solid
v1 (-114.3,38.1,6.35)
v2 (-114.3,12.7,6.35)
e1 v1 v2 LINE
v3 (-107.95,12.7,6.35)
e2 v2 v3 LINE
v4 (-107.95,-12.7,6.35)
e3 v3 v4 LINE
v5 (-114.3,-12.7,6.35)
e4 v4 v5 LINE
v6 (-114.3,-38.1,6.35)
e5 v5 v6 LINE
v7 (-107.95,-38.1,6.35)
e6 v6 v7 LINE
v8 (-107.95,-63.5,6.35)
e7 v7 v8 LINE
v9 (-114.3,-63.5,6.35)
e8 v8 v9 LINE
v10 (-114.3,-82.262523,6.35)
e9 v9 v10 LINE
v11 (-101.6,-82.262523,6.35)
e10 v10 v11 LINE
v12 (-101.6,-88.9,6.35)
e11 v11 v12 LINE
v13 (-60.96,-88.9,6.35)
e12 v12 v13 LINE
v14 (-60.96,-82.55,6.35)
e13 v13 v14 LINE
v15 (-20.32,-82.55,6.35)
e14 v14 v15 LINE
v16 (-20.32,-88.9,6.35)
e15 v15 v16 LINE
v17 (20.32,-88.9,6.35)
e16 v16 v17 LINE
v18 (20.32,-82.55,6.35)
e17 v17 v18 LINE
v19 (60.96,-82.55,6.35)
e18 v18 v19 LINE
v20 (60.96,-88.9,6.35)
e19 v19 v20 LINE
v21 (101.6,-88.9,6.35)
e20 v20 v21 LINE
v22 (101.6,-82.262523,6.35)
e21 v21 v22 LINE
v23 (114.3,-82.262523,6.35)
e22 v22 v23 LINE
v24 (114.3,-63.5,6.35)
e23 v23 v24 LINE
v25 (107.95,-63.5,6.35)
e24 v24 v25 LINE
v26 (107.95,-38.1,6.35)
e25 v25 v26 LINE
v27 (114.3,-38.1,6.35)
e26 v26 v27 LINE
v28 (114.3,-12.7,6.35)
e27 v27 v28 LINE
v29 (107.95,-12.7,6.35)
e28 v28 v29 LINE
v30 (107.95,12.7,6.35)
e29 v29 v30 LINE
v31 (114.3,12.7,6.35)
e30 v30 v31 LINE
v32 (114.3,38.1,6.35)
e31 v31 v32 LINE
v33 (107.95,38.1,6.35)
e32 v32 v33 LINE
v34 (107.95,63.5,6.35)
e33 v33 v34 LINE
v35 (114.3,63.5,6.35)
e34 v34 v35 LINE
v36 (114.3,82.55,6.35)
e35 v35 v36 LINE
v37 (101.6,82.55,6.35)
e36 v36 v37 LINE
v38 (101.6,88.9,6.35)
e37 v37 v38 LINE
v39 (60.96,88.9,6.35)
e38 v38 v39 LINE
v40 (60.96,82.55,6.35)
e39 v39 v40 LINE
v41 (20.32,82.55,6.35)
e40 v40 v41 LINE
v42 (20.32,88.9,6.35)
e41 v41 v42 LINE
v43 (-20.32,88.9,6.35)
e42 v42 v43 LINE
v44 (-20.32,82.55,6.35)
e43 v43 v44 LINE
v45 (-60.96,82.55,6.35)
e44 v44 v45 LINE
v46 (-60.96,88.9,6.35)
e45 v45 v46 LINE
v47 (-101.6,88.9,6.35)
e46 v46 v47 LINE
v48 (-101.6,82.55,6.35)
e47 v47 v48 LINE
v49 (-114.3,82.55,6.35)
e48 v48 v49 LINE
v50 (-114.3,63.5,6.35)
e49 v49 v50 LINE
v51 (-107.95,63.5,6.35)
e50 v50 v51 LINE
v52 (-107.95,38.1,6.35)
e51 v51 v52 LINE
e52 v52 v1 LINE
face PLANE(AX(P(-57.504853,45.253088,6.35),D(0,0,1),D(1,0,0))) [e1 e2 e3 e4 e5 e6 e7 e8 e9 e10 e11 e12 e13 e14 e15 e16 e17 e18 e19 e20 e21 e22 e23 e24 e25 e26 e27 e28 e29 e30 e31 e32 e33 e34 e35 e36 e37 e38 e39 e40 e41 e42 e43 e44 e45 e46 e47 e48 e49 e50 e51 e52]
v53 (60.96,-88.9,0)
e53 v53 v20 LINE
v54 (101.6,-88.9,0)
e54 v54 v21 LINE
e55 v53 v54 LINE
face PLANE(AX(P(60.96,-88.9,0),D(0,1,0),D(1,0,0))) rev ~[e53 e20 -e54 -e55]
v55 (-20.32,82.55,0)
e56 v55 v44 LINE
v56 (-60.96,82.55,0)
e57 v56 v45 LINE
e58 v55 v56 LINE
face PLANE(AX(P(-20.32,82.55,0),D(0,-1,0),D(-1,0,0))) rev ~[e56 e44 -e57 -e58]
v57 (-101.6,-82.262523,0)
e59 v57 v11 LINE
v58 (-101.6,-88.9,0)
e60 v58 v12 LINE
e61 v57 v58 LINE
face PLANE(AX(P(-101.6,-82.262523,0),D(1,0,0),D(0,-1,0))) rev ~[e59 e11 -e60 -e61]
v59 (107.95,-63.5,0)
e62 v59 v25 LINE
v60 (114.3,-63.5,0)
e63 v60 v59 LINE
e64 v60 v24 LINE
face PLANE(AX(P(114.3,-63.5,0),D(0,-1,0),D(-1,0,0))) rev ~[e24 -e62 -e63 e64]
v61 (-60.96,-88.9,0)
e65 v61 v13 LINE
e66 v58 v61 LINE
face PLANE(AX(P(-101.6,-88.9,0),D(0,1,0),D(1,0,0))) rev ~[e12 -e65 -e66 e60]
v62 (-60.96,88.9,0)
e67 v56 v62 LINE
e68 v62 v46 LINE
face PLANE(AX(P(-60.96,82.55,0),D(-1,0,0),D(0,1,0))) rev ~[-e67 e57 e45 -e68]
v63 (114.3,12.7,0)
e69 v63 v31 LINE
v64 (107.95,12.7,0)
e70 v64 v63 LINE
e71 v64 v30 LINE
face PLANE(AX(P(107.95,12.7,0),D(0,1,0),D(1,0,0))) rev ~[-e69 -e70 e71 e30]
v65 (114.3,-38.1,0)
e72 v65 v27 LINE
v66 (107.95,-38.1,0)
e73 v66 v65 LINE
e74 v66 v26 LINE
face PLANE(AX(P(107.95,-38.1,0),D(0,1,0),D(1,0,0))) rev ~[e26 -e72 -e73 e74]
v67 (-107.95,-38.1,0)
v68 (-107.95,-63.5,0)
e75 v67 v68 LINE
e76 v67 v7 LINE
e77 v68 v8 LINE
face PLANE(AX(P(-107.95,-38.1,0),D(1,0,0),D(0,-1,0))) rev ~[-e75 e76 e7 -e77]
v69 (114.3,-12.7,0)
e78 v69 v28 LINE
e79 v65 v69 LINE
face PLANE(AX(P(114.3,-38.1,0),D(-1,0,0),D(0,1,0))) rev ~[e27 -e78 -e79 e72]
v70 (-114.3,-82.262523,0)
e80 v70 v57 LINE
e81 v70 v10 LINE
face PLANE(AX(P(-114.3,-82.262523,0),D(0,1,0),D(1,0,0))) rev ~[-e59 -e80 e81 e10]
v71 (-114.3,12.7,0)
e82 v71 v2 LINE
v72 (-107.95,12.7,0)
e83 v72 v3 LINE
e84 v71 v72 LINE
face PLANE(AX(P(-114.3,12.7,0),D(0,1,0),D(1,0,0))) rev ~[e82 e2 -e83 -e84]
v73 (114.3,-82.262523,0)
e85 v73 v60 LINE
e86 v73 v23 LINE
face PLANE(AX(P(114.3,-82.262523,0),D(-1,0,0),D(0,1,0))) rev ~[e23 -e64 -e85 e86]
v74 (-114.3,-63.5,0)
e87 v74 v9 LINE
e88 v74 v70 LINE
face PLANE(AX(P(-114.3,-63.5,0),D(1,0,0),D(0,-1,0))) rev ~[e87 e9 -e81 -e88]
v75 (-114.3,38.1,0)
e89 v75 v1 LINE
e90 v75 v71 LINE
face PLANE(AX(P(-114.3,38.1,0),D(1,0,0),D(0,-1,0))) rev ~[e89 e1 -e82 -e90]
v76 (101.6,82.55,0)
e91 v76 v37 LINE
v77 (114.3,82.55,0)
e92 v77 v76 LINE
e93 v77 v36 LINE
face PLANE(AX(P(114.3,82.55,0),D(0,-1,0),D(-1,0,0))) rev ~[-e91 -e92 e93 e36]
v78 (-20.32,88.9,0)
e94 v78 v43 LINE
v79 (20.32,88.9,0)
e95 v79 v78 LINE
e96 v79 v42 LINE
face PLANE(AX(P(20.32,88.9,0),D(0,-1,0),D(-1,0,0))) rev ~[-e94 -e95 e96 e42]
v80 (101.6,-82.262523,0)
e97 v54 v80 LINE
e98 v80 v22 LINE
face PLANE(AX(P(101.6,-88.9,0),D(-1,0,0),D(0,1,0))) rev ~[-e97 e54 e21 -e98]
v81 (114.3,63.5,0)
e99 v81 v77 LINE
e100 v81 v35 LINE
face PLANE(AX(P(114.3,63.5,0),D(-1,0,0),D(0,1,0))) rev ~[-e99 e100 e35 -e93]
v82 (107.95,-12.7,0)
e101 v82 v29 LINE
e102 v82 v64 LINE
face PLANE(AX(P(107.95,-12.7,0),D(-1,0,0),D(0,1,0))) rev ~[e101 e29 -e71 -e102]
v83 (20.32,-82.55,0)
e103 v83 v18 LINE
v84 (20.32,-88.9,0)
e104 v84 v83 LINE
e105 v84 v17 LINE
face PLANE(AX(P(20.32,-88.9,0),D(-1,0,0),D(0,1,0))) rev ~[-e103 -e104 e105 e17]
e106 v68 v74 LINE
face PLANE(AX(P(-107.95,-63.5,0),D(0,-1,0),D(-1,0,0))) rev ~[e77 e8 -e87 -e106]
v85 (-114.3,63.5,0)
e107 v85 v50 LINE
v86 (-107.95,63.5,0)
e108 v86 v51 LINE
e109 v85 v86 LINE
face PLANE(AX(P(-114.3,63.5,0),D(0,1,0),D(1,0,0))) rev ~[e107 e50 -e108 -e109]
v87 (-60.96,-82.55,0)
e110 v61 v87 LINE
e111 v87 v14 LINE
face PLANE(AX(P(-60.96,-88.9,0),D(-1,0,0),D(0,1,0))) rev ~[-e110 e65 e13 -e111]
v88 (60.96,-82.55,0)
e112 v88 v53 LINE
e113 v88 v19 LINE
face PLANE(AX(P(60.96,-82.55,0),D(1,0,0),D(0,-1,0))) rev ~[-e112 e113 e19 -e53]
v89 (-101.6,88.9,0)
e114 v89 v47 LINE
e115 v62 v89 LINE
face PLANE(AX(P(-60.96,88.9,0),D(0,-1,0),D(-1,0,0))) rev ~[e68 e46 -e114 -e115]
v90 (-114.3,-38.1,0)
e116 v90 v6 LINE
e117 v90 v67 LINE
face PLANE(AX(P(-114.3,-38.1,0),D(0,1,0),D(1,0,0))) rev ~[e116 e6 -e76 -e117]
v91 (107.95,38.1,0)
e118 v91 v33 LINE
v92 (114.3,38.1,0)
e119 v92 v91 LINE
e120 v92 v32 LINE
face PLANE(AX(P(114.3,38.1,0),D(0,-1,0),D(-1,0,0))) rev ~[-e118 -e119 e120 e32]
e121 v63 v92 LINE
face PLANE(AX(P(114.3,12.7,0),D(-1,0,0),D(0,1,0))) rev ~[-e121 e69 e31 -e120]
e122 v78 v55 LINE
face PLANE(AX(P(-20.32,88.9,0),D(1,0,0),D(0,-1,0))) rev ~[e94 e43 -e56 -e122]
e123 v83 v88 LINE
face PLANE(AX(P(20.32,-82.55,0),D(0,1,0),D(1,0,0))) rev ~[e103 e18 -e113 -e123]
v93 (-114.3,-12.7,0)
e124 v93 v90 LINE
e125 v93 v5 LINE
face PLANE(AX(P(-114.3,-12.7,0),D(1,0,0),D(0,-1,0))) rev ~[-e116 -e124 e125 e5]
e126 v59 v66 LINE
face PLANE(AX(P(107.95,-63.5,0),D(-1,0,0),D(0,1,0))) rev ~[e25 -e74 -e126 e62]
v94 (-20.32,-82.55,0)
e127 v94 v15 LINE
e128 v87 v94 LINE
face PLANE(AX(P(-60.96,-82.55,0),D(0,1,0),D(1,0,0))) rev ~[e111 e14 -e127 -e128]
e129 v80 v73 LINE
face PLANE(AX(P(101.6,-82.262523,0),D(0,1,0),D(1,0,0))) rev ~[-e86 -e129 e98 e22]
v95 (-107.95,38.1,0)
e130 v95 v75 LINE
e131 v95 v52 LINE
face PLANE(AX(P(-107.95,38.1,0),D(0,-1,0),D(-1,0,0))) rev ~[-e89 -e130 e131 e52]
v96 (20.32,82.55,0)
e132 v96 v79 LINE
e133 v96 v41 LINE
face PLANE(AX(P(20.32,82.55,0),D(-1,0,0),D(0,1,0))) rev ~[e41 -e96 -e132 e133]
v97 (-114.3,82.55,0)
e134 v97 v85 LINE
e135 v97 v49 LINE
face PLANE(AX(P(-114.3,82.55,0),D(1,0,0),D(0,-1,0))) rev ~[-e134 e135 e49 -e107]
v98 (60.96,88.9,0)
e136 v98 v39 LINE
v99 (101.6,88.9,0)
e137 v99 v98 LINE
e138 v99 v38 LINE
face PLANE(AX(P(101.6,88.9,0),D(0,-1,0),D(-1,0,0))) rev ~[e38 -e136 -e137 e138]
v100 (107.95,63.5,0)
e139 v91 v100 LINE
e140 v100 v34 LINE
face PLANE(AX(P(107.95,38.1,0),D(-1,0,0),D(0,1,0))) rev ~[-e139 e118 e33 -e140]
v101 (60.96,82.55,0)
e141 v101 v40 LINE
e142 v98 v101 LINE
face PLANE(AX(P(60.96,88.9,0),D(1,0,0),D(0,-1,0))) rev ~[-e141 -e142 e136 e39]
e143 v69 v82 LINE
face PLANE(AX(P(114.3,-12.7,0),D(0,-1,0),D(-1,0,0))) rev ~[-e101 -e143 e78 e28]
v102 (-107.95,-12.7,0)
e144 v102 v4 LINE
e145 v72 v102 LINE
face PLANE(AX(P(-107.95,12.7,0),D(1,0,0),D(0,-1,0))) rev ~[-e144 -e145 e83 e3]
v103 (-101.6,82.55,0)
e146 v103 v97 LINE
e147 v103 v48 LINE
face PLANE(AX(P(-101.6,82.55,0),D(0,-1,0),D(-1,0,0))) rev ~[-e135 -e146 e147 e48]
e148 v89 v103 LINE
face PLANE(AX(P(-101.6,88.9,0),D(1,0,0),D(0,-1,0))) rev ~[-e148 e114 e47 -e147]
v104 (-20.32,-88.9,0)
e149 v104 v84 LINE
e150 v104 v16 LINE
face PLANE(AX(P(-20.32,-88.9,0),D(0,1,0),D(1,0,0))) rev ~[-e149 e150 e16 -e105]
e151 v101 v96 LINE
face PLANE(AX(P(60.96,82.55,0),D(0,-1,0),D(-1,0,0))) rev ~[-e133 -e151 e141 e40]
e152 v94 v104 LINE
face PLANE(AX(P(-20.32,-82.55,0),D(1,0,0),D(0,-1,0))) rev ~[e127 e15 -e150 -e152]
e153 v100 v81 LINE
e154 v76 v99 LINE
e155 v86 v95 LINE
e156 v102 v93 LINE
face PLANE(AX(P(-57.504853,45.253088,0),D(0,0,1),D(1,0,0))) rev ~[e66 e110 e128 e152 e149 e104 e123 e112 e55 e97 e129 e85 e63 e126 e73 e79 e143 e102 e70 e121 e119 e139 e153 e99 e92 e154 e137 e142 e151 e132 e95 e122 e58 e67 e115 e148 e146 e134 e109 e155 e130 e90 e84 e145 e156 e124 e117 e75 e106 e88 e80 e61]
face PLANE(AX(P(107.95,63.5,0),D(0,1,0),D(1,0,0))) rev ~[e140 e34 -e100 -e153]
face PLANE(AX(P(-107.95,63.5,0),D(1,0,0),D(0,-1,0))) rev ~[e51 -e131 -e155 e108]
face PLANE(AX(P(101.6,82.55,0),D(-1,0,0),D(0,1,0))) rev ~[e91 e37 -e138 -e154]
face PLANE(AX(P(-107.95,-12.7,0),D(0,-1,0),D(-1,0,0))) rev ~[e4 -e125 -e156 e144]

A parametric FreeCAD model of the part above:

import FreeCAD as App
import Part
import Sketcher

V = App.Vector
Q = App.Units.Quantity

doc = App.newDocument("Part")
body = doc.addObject("PartDesign::Body", "Body")

sketch1 = body.newObject("Sketcher::SketchObject", "Sketch")
sketch1.AttachmentSupport = (doc.getObject("XY_Plane"), [""])
sketch1.MapMode = "FlatFace"
sketch1.addGeometry([
    Part.LineSegment(V(-20.32, 88.9, 0), V(-20.32, 82.55, 0)),
    Part.LineSegment(V(-20.32, 82.55, 0), V(-60.96, 82.55, 0)),
    Part.LineSegment(V(-60.96, 82.55, 0), V(-60.96, 88.9, 0)),
    Part.LineSegment(V(-60.96, 88.9, 0), V(-101.6, 88.9, 0)),
    Part.LineSegment(V(-101.6, 88.9, 0), V(-101.6, 82.55, 0)),
    Part.LineSegment(V(-101.6, 82.55, 0), V(-114.3, 82.55, 0)),
    Part.LineSegment(V(-114.3, 82.55, 0), V(-114.3, 63.5, 0)),
    Part.LineSegment(V(-114.3, 63.5, 0), V(-107.95, 63.5, 0)),
    Part.LineSegment(V(-107.95, 63.5, 0), V(-107.95, 38.1, 0)),
    Part.LineSegment(V(-107.95, 38.1, 0), V(-114.3, 38.1, 0)),
    Part.LineSegment(V(-114.3, 38.1, 0), V(-114.3, 12.7, 0)),
    Part.LineSegment(V(-114.3, 12.7, 0), V(-107.95, 12.7, 0)),
    Part.LineSegment(V(-107.95, 12.7, 0), V(-107.95, -12.7, 0)),
    Part.LineSegment(V(-107.95, -12.7, 0), V(-114.3, -12.7, 0)),
    Part.LineSegment(V(-114.3, -12.7, 0), V(-114.3, -38.1, 0)),
    Part.LineSegment(V(-114.3, -38.1, 0), V(-107.95, -38.1, 0)),
    Part.LineSegment(V(-107.95, -38.1, 0), V(-107.95, -63.5, 0)),
    Part.LineSegment(V(-107.95, -63.5, 0), V(-114.3, -63.5, 0)),
    Part.LineSegment(V(-114.3, -63.5, 0), V(-114.3, -82.262523, 0)),
    Part.LineSegment(V(-114.3, -82.262523, 0), V(-101.6, -82.262523, 0)),
    Part.LineSegment(V(-101.6, -82.262523, 0), V(-101.6, -88.9, 0)),
    Part.LineSegment(V(-101.6, -88.9, 0), V(-60.96, -88.9, 0)),
    Part.LineSegment(V(-60.96, -88.9, 0), V(-60.96, -82.55, 0)),
    Part.LineSegment(V(-60.96, -82.55, 0), V(-20.32, -82.55, 0)),
    Part.LineSegment(V(-20.32, -82.55, 0), V(-20.32, -88.9, 0)),
    Part.LineSegment(V(-20.32, -88.9, 0), V(20.32, -88.9, 0)),
    Part.LineSegment(V(20.32, -88.9, 0), V(20.32, -82.55, 0)),
    Part.LineSegment(V(20.32, -82.55, 0), V(60.96, -82.55, 0)),
    Part.LineSegment(V(60.96, -82.55, 0), V(60.96, -88.9, 0)),
    Part.LineSegment(V(60.96, -88.9, 0), V(101.6, -88.9, 0)),
    Part.LineSegment(V(101.6, -88.9, 0), V(101.6, -82.262523, 0)),
    Part.LineSegment(V(101.6, -82.262523, 0), V(114.3, -82.262523, 0)),
    Part.LineSegment(V(114.3, -82.262523, 0), V(114.3, -63.5, 0)),
    Part.LineSegment(V(114.3, -63.5, 0), V(107.95, -63.5, 0)),
    Part.LineSegment(V(107.95, -63.5, 0), V(107.95, -38.1, 0)),
    Part.LineSegment(V(107.95, -38.1, 0), V(114.3, -38.1, 0)),
    Part.LineSegment(V(114.3, -38.1, 0), V(114.3, -12.7, 0)),
    Part.LineSegment(V(114.3, -12.7, 0), V(107.95, -12.7, 0)),
    Part.LineSegment(V(107.95, -12.7, 0), V(107.95, 12.7, 0)),
    Part.LineSegment(V(107.95, 12.7, 0), V(114.3, 12.7, 0)),
    Part.LineSegment(V(114.3, 12.7, 0), V(114.3, 38.1, 0)),
    Part.LineSegment(V(114.3, 38.1, 0), V(107.95, 38.1, 0)),
    Part.LineSegment(V(107.95, 38.1, 0), V(107.95, 63.5, 0)),
    Part.LineSegment(V(107.95, 63.5, 0), V(114.3, 63.5, 0)),
    Part.LineSegment(V(114.3, 63.5, 0), V(114.3, 82.55, 0)),
    Part.LineSegment(V(114.3, 82.55, 0), V(101.6, 82.55, 0)),
    Part.LineSegment(V(101.6, 82.55, 0), V(101.6, 88.9, 0)),
    Part.LineSegment(V(101.6, 88.9, 0), V(60.96, 88.9, 0)),
    Part.LineSegment(V(60.96, 88.9, 0), V(60.96, 82.55, 0)),
    Part.LineSegment(V(60.96, 82.55, 0), V(20.32, 82.55, 0)),
    Part.LineSegment(V(20.32, 82.55, 0), V(20.32, 88.9, 0)),
    Part.LineSegment(V(20.32, 88.9, 0), V(-20.32, 88.9, 0)),
], False)
sketch1.addConstraint([
    Sketcher.Constraint("Coincident", 0, 2, 1, 1),
    Sketcher.Constraint("Coincident", 1, 2, 2, 1),
    Sketcher.Constraint("Coincident", 2, 2, 3, 1),
    Sketcher.Constraint("Coincident", 3, 2, 4, 1),
    Sketcher.Constraint("Coincident", 4, 2, 5, 1),
    Sketcher.Constraint("Coincident", 5, 2, 6, 1),
    Sketcher.Constraint("Coincident", 6, 2, 7, 1),
    Sketcher.Constraint("Coincident", 7, 2, 8, 1),
    Sketcher.Constraint("Coincident", 8, 2, 9, 1),
    Sketcher.Constraint("Coincident", 9, 2, 10, 1),
    Sketcher.Constraint("Coincident", 10, 2, 11, 1),
    Sketcher.Constraint("Coincident", 11, 2, 12, 1),
    Sketcher.Constraint("Coincident", 12, 2, 13, 1),
    Sketcher.Constraint("Coincident", 13, 2, 14, 1),
    Sketcher.Constraint("Coincident", 14, 2, 15, 1),
    Sketcher.Constraint("Coincident", 15, 2, 16, 1),
    Sketcher.Constraint("Coincident", 16, 2, 17, 1),
    Sketcher.Constraint("Coincident", 17, 2, 18, 1),
    Sketcher.Constraint("Coincident", 18, 2, 19, 1),
    Sketcher.Constraint("Coincident", 19, 2, 20, 1),
    Sketcher.Constraint("Coincident", 20, 2, 21, 1),
    Sketcher.Constraint("Coincident", 21, 2, 22, 1),
    Sketcher.Constraint("Coincident", 22, 2, 23, 1),
    Sketcher.Constraint("Coincident", 23, 2, 24, 1),
    Sketcher.Constraint("Coincident", 24, 2, 25, 1),
    Sketcher.Constraint("Coincident", 25, 2, 26, 1),
    Sketcher.Constraint("Coincident", 26, 2, 27, 1),
    Sketcher.Constraint("Coincident", 27, 2, 28, 1),
    Sketcher.Constraint("Coincident", 28, 2, 29, 1),
    Sketcher.Constraint("Coincident", 29, 2, 30, 1),
    Sketcher.Constraint("Coincident", 30, 2, 31, 1),
    Sketcher.Constraint("Coincident", 31, 2, 32, 1),
    Sketcher.Constraint("Coincident", 32, 2, 33, 1),
    Sketcher.Constraint("Coincident", 33, 2, 34, 1),
    Sketcher.Constraint("Coincident", 34, 2, 35, 1),
    Sketcher.Constraint("Coincident", 35, 2, 36, 1),
    Sketcher.Constraint("Coincident", 36, 2, 37, 1),
    Sketcher.Constraint("Coincident", 37, 2, 38, 1),
    Sketcher.Constraint("Coincident", 38, 2, 39, 1),
    Sketcher.Constraint("Coincident", 39, 2, 40, 1),
    Sketcher.Constraint("Coincident", 40, 2, 41, 1),
    Sketcher.Constraint("Coincident", 41, 2, 42, 1),
    Sketcher.Constraint("Coincident", 42, 2, 43, 1),
    Sketcher.Constraint("Coincident", 43, 2, 44, 1),
    Sketcher.Constraint("Coincident", 44, 2, 45, 1),
    Sketcher.Constraint("Coincident", 45, 2, 46, 1),
    Sketcher.Constraint("Coincident", 46, 2, 47, 1),
    Sketcher.Constraint("Coincident", 47, 2, 48, 1),
    Sketcher.Constraint("Coincident", 48, 2, 49, 1),
    Sketcher.Constraint("Coincident", 49, 2, 50, 1),
    Sketcher.Constraint("Coincident", 50, 2, 51, 1),
    Sketcher.Constraint("Coincident", 51, 2, 0, 1),
    Sketcher.Constraint("Vertical", 0),
    Sketcher.Constraint("Horizontal", 1),
    Sketcher.Constraint("Vertical", 2),
    Sketcher.Constraint("Horizontal", 3),
    Sketcher.Constraint("Vertical", 4),
    Sketcher.Constraint("Horizontal", 5),
    Sketcher.Constraint("Vertical", 6),
    Sketcher.Constraint("Horizontal", 7),
    Sketcher.Constraint("Vertical", 8),
    Sketcher.Constraint("Horizontal", 9),
    Sketcher.Constraint("Vertical", 10),
    Sketcher.Constraint("Horizontal", 11),
    Sketcher.Constraint("Vertical", 12),
    Sketcher.Constraint("Horizontal", 13),
    Sketcher.Constraint("Vertical", 14),
    Sketcher.Constraint("Horizontal", 15),
    Sketcher.Constraint("Vertical", 16),
    Sketcher.Constraint("Horizontal", 17),
    Sketcher.Constraint("Vertical", 18),
    Sketcher.Constraint("Horizontal", 19),
    Sketcher.Constraint("Vertical", 20),
    Sketcher.Constraint("Horizontal", 21),
    Sketcher.Constraint("Vertical", 22),
    Sketcher.Constraint("Horizontal", 23),
    Sketcher.Constraint("Vertical", 24),
    Sketcher.Constraint("Horizontal", 25),
    Sketcher.Constraint("Vertical", 26),
    Sketcher.Constraint("Horizontal", 27),
    Sketcher.Constraint("Vertical", 28),
    Sketcher.Constraint("Horizontal", 29),
    Sketcher.Constraint("Vertical", 30),
    Sketcher.Constraint("Horizontal", 31),
    Sketcher.Constraint("Vertical", 32),
    Sketcher.Constraint("Horizontal", 33),
    Sketcher.Constraint("Vertical", 34),
    Sketcher.Constraint("Horizontal", 35),
    Sketcher.Constraint("Vertical", 36),
    Sketcher.Constraint("Horizontal", 37),
    Sketcher.Constraint("Vertical", 38),
    Sketcher.Constraint("Horizontal", 39),
    Sketcher.Constraint("Vertical", 40),
    Sketcher.Constraint("Horizontal", 41),
    Sketcher.Constraint("Vertical", 42),
    Sketcher.Constraint("Horizontal", 43),
    Sketcher.Constraint("Vertical", 44),
    Sketcher.Constraint("Horizontal", 45),
    Sketcher.Constraint("Vertical", 46),
    Sketcher.Constraint("Horizontal", 47),
    Sketcher.Constraint("Vertical", 48),
    Sketcher.Constraint("Horizontal", 49),
    Sketcher.Constraint("Vertical", 50),
    Sketcher.Constraint("Horizontal", 51),
    Sketcher.Constraint("Symmetric", 0, 2, 26, 2, -1, 1),
    Sketcher.Constraint("Symmetric", 2, 2, 28, 2, -1, 1),
    Sketcher.Constraint("Symmetric", 6, 2, 32, 2, -1, 1),
    Sketcher.Constraint("Symmetric", 8, 2, 34, 2, -1, 1),
    Sketcher.Constraint("Symmetric", 10, 2, 36, 2, -1, 1),
    Sketcher.Constraint("Symmetric", 12, 2, 38, 2, -1, 1),
    Sketcher.Constraint("Symmetric", 14, 2, 40, 2, -1, 1),
    Sketcher.Constraint("Symmetric", 16, 2, 42, 2, -1, 1),
    Sketcher.Constraint("Symmetric", 20, 2, 46, 2, -1, 1),
    Sketcher.Constraint("Symmetric", 22, 2, 48, 2, -1, 1),
    Sketcher.Constraint("Symmetric", 24, 2, 50, 2, -1, 1),
    Sketcher.Constraint("Symmetric", 23, 2, 26, 2, -2),
    Sketcher.Constraint("Symmetric", 21, 2, 28, 2, -2),
    Sketcher.Constraint("Symmetric", 19, 2, 30, 2, -2),
    Sketcher.Constraint("Symmetric", 17, 2, 32, 2, -2),
    Sketcher.Constraint("Symmetric", 15, 2, 34, 2, -2),
    Sketcher.Constraint("Symmetric", 13, 2, 36, 2, -2),
    Sketcher.Constraint("Symmetric", 5, 2, 44, 2, -2),
    Sketcher.Constraint("Horizontal", 1, 2, 4, 2),
    Sketcher.Constraint("Horizontal", 21, 2, 24, 2),
    Sketcher.Constraint("Vertical", 6, 2, 9, 2),
    Sketcher.Constraint("Vertical", 8, 2, 11, 2),
    Sketcher.Constraint("Vertical", 4, 2, 19, 2),
    Sketcher.Constraint("Equal", 1, 3),
    Sketcher.Constraint("Equal", 23, 25),
    Sketcher.Constraint("Equal", 43, 0),
    Sketcher.Constraint("Equal", 8, 10),
    Sketcher.Constraint("Equal", 10, 12),
    Sketcher.Constraint("DistanceY", 8, 2, 8, 1, Q("1 in")),
    Sketcher.Constraint("DistanceX", 1, 2, 1, 1, Q("1.6 in")),
    Sketcher.Constraint("DistanceX", 5, 2, 5, 1, Q("0.5 in")),
    Sketcher.Constraint("DistanceY", 6, 2, 3, 2, Q("1 in")),
    Sketcher.Constraint("DistanceX", 7, 1, 7, 2, Q("0.25 in")),
    Sketcher.Constraint("DistanceY", 18, 2, 18, 1, Q("18.762523 mm")),
])
pad1 = body.newObject("PartDesign::Pad", "Pad")
pad1.Profile = sketch1
pad1.Length = Q("0.25 in")

doc.recompute()
